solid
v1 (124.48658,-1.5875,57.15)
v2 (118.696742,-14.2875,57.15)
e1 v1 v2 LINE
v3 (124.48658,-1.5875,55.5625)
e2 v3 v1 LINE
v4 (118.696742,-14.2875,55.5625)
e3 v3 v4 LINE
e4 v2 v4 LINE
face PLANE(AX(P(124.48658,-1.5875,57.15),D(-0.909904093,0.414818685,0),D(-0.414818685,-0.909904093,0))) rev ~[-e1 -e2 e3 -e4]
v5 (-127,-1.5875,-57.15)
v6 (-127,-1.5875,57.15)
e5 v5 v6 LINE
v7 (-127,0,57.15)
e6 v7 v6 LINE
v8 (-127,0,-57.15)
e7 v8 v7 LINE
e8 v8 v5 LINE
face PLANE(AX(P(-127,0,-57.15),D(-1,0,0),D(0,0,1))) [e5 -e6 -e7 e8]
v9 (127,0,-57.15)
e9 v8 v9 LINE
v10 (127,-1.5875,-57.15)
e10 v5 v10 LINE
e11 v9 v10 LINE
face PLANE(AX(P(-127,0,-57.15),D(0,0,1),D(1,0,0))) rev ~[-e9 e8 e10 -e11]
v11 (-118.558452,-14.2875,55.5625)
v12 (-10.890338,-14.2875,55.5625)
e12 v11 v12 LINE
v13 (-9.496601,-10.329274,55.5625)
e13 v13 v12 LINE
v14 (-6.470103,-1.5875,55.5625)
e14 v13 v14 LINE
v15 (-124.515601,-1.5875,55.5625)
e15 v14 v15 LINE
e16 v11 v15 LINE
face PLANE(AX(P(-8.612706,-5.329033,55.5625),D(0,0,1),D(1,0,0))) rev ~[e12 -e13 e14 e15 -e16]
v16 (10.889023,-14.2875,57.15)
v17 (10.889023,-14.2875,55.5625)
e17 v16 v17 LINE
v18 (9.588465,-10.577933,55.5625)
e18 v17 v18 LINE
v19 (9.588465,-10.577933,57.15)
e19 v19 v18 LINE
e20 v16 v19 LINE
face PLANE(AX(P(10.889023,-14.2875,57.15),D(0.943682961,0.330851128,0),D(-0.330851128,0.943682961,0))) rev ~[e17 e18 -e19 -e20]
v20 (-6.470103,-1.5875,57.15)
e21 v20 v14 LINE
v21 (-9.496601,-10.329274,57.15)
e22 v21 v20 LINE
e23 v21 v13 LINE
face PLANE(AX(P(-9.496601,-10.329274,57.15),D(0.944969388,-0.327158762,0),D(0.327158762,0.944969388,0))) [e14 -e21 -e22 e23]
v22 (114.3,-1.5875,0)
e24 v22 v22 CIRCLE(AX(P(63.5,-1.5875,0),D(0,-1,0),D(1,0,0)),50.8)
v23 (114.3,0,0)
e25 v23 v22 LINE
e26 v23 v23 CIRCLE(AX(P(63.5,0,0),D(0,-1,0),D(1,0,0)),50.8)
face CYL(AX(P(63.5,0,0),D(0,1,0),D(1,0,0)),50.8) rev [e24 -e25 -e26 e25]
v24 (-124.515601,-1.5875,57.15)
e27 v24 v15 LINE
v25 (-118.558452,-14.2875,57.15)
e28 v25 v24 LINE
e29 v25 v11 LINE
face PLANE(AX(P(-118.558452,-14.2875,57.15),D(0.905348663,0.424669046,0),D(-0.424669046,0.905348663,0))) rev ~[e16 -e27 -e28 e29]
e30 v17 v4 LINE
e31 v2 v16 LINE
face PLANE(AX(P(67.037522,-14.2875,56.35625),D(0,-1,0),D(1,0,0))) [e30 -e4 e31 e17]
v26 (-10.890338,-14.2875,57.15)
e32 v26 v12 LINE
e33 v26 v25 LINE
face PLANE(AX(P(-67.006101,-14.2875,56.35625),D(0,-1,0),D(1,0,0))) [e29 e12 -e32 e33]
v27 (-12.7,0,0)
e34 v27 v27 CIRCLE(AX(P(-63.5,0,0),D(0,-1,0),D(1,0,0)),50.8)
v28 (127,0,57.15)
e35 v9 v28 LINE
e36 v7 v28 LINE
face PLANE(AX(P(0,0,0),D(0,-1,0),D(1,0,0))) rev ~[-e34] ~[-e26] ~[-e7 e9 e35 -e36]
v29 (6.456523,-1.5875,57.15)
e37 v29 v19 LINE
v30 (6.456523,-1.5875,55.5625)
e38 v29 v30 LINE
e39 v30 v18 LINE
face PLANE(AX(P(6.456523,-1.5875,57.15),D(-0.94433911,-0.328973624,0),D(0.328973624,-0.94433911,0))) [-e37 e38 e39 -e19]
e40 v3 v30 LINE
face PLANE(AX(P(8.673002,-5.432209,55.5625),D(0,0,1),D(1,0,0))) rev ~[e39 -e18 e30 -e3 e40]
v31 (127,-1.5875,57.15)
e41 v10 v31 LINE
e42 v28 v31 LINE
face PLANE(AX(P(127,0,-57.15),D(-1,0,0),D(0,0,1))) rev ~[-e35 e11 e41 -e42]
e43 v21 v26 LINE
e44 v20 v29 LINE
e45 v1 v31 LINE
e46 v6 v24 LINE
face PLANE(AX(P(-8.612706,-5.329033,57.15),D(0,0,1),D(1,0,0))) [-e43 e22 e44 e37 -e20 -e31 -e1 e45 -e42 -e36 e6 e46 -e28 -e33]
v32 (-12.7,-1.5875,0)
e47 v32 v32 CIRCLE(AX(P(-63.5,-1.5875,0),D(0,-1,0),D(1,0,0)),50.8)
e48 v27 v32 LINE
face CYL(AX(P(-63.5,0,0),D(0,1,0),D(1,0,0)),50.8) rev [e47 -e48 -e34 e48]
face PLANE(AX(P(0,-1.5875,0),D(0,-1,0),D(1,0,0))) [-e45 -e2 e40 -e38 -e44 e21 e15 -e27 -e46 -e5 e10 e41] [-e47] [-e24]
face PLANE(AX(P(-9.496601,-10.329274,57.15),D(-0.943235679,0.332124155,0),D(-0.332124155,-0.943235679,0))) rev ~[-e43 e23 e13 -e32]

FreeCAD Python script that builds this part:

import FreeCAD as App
import Part
import Sketcher

V = App.Vector
Q = App.Units.Quantity


def add_polygon(sketch, points):
    """Adds a closed chain of lines whose ends are joined by coincident constraints."""
    first, n = sketch.GeometryCount, len(points)
    for a, b in zip(points, points[1:] + points[:1]):
        sketch.addGeometry(Part.LineSegment(App.Vector(*a, 0), App.Vector(*b, 0)), False)
    for i in range(n):
        sketch.addConstraint(Sketcher.Constraint("Coincident", first + i, 2, first + (i + 1) % n, 1))

doc = App.newDocument("Part")
body = doc.addObject("PartDesign::Body", "Body")

# Sketch on XZ plane
sketch1 = doc.addObject("Sketcher::SketchObject", "Sketch")
body.addObject(sketch1)
sketch1.AttachmentSupport = (doc.XZ_Plane, [""])
sketch1.MapMode = "FlatFace"
add_polygon(sketch1, [(-127, 57), (-127, -57), (127, -57), (127, 57)])  # lines 0-3
sketch1.addGeometry(Part.Circle(V(-64, 0, 0), V(0, 0, 1), 51), False)  # 4
sketch1.addGeometry(Part.Circle(V(64, 0, 0), V(0, 0, 1), 51), False)  # 5
sketch1.addConstraint(Sketcher.Constraint("Vertical", 0))
sketch1.addConstraint(Sketcher.Constraint("Horizontal", 1))
sketch1.addConstraint(Sketcher.Constraint("Vertical", 2))
sketch1.addConstraint(Sketcher.Constraint("Horizontal", 3))
sketch1.addConstraint(Sketcher.Constraint("Equal", 4, 5))
sketch1.addConstraint(Sketcher.Constraint("Symmetric", 4, 3, 5, 3, -1, 1))
sketch1.addConstraint(Sketcher.Constraint("Symmetric", 0, 2, 2, 2, -1, 1))
sketch1.addConstraint(Sketcher.Constraint("PointOnObject", 4, 3, -1))
sketch1.addConstraint(Sketcher.Constraint("Diameter", 4, Q("4 in")))
sketch1.addConstraint(Sketcher.Constraint("DistanceX", 1, 1, 1, 2, Q("10 in")))
sketch1.addConstraint(Sketcher.Constraint("DistanceY", 0, 2, 0, 1, Q("4.5 in")))
sketch1.addConstraint(Sketcher.Constraint("DistanceX", 4, 3, 5, 3, Q("5 in")))
pad1 = doc.addObject("PartDesign::Pad", "Pad")
body.addObject(pad1)
pad1.Profile = sketch1
pad1.Length = Q("0.0625 in")

# Sketch on XZ plane
sketch2 = doc.addObject("Sketcher::SketchObject", "Sketch001")
body.addObject(sketch2)
sketch2.AttachmentSupport = (doc.XZ_Plane, [""])
sketch2.MapMode = "FlatFace"
sketch2.AttachmentOffset = App.Placement(V(0, 0, 0.0625 * 25.4), App.Rotation())
add_polygon(sketch2, [(-9.5, 57.1), (-124.5, 57.1), (-124.5, 55.6), (-9.5, 55.6)])  # lines 0-3
add_polygon(sketch2, [(9.6, 57.1), (9.6, 55.6), (124.5, 55.6), (124.5, 57.1)])  # lines 4-7
sketch2.addConstraint(Sketcher.Constraint("Horizontal", 0))
sketch2.addConstraint(Sketcher.Constraint("Vertical", 1))
sketch2.addConstraint(Sketcher.Constraint("Horizontal", 2))
sketch2.addConstraint(Sketcher.Constraint("Vertical", 3))
sketch2.addConstraint(Sketcher.Constraint("Vertical", 4))
sketch2.addConstraint(Sketcher.Constraint("Horizontal", 5))
sketch2.addConstraint(Sketcher.Constraint("Vertical", 6))
sketch2.addConstraint(Sketcher.Constraint("Horizontal", 7))
sketch2.addConstraint(Sketcher.Constraint("Horizontal", 2, 2, 4, 2))
sketch2.addConstraint(Sketcher.Constraint("Horizontal", 3, 2, 6, 2))
sketch2.addConstraint(Sketcher.Constraint("DistanceY", 1, 2, 1, 1, Q("0.0625 in")))
sketch2.addConstraint(Sketcher.Constraint("DistanceY", -1, 1, 0, 2, Q("2.25 in")))
sketch2.addConstraint(Sketcher.Constraint("DistanceX", 0, 2, 0, 1, Q("115.019 mm")))
sketch2.addConstraint(Sketcher.Constraint("DistanceX", 0, 2, -1, 1, Q("124.515601 mm")))
sketch2.addConstraint(Sketcher.Constraint("DistanceX", 5, 1, 5, 2, Q("114.898115 mm")))
sketch2.addConstraint(Sketcher.Constraint("DistanceX", -1, 1, 5, 2, Q("124.48658 mm")))
pad2 = doc.addObject("PartDesign::Pad", "Pad001")
body.addObject(pad2)
pad2.Profile = sketch2
pad2.Length = Q("0.5 in")

# Sketch on XY plane
sketch3 = doc.addObject("Sketcher::SketchObject", "Sketch002")
body.addObject(sketch3)
sketch3.AttachmentSupport = (doc.XY_Plane, [""])
sketch3.MapMode = "FlatFace"
sketch3.AttachmentOffset = App.Placement(V(0, 0, 2.25 * 25.4), App.Rotation())
add_polygon(sketch3, [(-6.5, -1.6), (-9.5, -1.6), (-9.5, -10.3)])  # lines 0-2
add_polygon(sketch3, [(9.6, -10.6), (9.6, -1.6), (6.5, -1.6)])  # lines 3-5
sketch3.addConstraint(Sketcher.Constraint("Horizontal", 0))
sketch3.addConstraint(Sketcher.Constraint("Vertical", 1))
sketch3.addConstraint(Sketcher.Constraint("Vertical", 3))
sketch3.addConstraint(Sketcher.Constraint("Horizontal", 4))
sketch3.addConstraint(Sketcher.Constraint("Horizontal", 2, 2, 3, 2))
sketch3.addConstraint(Sketcher.Constraint("DistanceY", 0, 2, -1, 1, Q("0.0625 in")))
sketch3.addConstraint(Sketcher.Constraint("DistanceX", 0, 2, 0, 1, Q("3.026498 mm")))
sketch3.addConstraint(Sketcher.Constraint("DistanceX", 4, 2, 4, 1, Q("3.131942 mm")))
sketch3.addConstraint(Sketcher.Constraint("DistanceX", 0, 2, -1, 1, Q("9.496601 mm")))
sketch3.addConstraint(Sketcher.Constraint("DistanceY", 1, 2, 1, 1, Q("8.741774 mm")))
sketch3.addConstraint(Sketcher.Constraint("DistanceY", 3, 1, 3, 2, Q("8.990433 mm")))
sketch3.addConstraint(Sketcher.Constraint("DistanceX", 2, 2, 3, 2, Q("16.058568 mm")))
pad3 = doc.addObject("PartDesign::Pad", "Pad002")
body.addObject(pad3)
pad3.Profile = sketch3
pad3.Length = Q("0.0625 in")
pad3.Reversed = True

# Sketch on XY plane
sketch4 = doc.addObject("Sketcher::SketchObject", "Sketch003")
body.addObject(sketch4)
sketch4.AttachmentSupport = (doc.XY_Plane, [""])
sketch4.MapMode = "FlatFace"
sketch4.AttachmentOffset = App.Placement(V(0, 0, 2.25 * 25.4), App.Rotation())
add_polygon(sketch4, [(-10.9, -14.3), (-9.5, -14.3), (-9.5, -10.3)])  # lines 0-2
add_polygon(sketch4, [(9.6, -10.6), (9.6, -14.3), (10.9, -14.3)])  # lines 3-5
sketch4.addConstraint(Sketcher.Constraint("Horizontal", 0))
sketch4.addConstraint(Sketcher.Constraint("Vertical", 1))
sketch4.addConstraint(Sketcher.Constraint("Vertical", 3))
sketch4.addConstraint(Sketcher.Constraint("Horizontal", 4))
sketch4.addConstraint(Sketcher.Constraint("Horizontal", 2, 2, 3, 2))
sketch4.addConstraint(Sketcher.Constraint("DistanceY", 0, 2, -1, 1, Q("0.5625 in")))
sketch4.addConstraint(Sketcher.Constraint("DistanceX", 4, 1, 4, 2, Q("1.300558 mm")))
sketch4.addConstraint(Sketcher.Constraint("DistanceX", 0, 2, -1, 1, Q("9.496601 mm")))
sketch4.addConstraint(Sketcher.Constraint("DistanceX", 0, 1, 0, 2, Q("1.393737 mm")))
sketch4.addConstraint(Sketcher.Constraint("DistanceY", 1, 1, 1, 2, Q("3.958226 mm")))
sketch4.addConstraint(Sketcher.Constraint("DistanceY", 3, 2, 3, 1, Q("3.709567 mm")))
sketch4.addConstraint(Sketcher.Constraint("DistanceX", 2, 2, 4, 2, Q("21.779361 mm")))
pocket1 = doc.addObject("PartDesign::Pocket", "Pocket")
body.addObject(pocket1)
pocket1.Profile = sketch4
pocket1.Length = Q("1 in")

# Sketch on XY plane
sketch5 = doc.addObject("Sketcher::SketchObject", "Sketch004")
body.addObject(sketch5)
sketch5.AttachmentSupport = (doc.XY_Plane, [""])
sketch5.MapMode = "FlatFace"
sketch5.AttachmentOffset = App.Placement(V(0, 0, 2.25 * 25.4), App.Rotation())
add_polygon(sketch5, [(-119, -14), (-125, -2), (-125, -14)])  # lines 0-2
add_polygon(sketch5, [(124, -14), (124, -2), (119, -14)])  # lines 3-5
sketch5.addConstraint(Sketcher.Constraint("Vertical", 1))
sketch5.addConstraint(Sketcher.Constraint("Horizontal", 2))
sketch5.addConstraint(Sketcher.Constraint("Vertical", 3))
sketch5.addConstraint(Sketcher.Constraint("Horizontal", 5))
sketch5.addConstraint(Sketcher.Constraint("Horizontal", 0, 2, 3, 2))
sketch5.addConstraint(Sketcher.Constraint("Horizontal", 2, 2, 4, 2))
sketch5.addConstraint(Sketcher.Constraint("DistanceY", 1, 2, 1, 1, Q("0.5 in")))
sketch5.addConstraint(Sketcher.Constraint("DistanceY", 0, 2, -1, 1, Q("0.0625 in")))
sketch5.addConstraint(Sketcher.Constraint("DistanceX", -1, 1, 4, 2, Q("4.6731001 in")))
sketch5.addConstraint(Sketcher.Constraint("DistanceX", 2, 1, 2, 2, Q("5.957149 mm")))
sketch5.addConstraint(Sketcher.Constraint("DistanceX", 5, 1, 5, 2, Q("5.789838 mm")))
sketch5.addConstraint(Sketcher.Constraint("DistanceX", 0, 2, -1, 1, Q("124.515601 mm")))
pocket2 = doc.addObject("PartDesign::Pocket", "Pocket001")
body.addObject(pocket2)
pocket2.Profile = sketch5
pocket2.Length = Q("1 in")

doc.recompute()
